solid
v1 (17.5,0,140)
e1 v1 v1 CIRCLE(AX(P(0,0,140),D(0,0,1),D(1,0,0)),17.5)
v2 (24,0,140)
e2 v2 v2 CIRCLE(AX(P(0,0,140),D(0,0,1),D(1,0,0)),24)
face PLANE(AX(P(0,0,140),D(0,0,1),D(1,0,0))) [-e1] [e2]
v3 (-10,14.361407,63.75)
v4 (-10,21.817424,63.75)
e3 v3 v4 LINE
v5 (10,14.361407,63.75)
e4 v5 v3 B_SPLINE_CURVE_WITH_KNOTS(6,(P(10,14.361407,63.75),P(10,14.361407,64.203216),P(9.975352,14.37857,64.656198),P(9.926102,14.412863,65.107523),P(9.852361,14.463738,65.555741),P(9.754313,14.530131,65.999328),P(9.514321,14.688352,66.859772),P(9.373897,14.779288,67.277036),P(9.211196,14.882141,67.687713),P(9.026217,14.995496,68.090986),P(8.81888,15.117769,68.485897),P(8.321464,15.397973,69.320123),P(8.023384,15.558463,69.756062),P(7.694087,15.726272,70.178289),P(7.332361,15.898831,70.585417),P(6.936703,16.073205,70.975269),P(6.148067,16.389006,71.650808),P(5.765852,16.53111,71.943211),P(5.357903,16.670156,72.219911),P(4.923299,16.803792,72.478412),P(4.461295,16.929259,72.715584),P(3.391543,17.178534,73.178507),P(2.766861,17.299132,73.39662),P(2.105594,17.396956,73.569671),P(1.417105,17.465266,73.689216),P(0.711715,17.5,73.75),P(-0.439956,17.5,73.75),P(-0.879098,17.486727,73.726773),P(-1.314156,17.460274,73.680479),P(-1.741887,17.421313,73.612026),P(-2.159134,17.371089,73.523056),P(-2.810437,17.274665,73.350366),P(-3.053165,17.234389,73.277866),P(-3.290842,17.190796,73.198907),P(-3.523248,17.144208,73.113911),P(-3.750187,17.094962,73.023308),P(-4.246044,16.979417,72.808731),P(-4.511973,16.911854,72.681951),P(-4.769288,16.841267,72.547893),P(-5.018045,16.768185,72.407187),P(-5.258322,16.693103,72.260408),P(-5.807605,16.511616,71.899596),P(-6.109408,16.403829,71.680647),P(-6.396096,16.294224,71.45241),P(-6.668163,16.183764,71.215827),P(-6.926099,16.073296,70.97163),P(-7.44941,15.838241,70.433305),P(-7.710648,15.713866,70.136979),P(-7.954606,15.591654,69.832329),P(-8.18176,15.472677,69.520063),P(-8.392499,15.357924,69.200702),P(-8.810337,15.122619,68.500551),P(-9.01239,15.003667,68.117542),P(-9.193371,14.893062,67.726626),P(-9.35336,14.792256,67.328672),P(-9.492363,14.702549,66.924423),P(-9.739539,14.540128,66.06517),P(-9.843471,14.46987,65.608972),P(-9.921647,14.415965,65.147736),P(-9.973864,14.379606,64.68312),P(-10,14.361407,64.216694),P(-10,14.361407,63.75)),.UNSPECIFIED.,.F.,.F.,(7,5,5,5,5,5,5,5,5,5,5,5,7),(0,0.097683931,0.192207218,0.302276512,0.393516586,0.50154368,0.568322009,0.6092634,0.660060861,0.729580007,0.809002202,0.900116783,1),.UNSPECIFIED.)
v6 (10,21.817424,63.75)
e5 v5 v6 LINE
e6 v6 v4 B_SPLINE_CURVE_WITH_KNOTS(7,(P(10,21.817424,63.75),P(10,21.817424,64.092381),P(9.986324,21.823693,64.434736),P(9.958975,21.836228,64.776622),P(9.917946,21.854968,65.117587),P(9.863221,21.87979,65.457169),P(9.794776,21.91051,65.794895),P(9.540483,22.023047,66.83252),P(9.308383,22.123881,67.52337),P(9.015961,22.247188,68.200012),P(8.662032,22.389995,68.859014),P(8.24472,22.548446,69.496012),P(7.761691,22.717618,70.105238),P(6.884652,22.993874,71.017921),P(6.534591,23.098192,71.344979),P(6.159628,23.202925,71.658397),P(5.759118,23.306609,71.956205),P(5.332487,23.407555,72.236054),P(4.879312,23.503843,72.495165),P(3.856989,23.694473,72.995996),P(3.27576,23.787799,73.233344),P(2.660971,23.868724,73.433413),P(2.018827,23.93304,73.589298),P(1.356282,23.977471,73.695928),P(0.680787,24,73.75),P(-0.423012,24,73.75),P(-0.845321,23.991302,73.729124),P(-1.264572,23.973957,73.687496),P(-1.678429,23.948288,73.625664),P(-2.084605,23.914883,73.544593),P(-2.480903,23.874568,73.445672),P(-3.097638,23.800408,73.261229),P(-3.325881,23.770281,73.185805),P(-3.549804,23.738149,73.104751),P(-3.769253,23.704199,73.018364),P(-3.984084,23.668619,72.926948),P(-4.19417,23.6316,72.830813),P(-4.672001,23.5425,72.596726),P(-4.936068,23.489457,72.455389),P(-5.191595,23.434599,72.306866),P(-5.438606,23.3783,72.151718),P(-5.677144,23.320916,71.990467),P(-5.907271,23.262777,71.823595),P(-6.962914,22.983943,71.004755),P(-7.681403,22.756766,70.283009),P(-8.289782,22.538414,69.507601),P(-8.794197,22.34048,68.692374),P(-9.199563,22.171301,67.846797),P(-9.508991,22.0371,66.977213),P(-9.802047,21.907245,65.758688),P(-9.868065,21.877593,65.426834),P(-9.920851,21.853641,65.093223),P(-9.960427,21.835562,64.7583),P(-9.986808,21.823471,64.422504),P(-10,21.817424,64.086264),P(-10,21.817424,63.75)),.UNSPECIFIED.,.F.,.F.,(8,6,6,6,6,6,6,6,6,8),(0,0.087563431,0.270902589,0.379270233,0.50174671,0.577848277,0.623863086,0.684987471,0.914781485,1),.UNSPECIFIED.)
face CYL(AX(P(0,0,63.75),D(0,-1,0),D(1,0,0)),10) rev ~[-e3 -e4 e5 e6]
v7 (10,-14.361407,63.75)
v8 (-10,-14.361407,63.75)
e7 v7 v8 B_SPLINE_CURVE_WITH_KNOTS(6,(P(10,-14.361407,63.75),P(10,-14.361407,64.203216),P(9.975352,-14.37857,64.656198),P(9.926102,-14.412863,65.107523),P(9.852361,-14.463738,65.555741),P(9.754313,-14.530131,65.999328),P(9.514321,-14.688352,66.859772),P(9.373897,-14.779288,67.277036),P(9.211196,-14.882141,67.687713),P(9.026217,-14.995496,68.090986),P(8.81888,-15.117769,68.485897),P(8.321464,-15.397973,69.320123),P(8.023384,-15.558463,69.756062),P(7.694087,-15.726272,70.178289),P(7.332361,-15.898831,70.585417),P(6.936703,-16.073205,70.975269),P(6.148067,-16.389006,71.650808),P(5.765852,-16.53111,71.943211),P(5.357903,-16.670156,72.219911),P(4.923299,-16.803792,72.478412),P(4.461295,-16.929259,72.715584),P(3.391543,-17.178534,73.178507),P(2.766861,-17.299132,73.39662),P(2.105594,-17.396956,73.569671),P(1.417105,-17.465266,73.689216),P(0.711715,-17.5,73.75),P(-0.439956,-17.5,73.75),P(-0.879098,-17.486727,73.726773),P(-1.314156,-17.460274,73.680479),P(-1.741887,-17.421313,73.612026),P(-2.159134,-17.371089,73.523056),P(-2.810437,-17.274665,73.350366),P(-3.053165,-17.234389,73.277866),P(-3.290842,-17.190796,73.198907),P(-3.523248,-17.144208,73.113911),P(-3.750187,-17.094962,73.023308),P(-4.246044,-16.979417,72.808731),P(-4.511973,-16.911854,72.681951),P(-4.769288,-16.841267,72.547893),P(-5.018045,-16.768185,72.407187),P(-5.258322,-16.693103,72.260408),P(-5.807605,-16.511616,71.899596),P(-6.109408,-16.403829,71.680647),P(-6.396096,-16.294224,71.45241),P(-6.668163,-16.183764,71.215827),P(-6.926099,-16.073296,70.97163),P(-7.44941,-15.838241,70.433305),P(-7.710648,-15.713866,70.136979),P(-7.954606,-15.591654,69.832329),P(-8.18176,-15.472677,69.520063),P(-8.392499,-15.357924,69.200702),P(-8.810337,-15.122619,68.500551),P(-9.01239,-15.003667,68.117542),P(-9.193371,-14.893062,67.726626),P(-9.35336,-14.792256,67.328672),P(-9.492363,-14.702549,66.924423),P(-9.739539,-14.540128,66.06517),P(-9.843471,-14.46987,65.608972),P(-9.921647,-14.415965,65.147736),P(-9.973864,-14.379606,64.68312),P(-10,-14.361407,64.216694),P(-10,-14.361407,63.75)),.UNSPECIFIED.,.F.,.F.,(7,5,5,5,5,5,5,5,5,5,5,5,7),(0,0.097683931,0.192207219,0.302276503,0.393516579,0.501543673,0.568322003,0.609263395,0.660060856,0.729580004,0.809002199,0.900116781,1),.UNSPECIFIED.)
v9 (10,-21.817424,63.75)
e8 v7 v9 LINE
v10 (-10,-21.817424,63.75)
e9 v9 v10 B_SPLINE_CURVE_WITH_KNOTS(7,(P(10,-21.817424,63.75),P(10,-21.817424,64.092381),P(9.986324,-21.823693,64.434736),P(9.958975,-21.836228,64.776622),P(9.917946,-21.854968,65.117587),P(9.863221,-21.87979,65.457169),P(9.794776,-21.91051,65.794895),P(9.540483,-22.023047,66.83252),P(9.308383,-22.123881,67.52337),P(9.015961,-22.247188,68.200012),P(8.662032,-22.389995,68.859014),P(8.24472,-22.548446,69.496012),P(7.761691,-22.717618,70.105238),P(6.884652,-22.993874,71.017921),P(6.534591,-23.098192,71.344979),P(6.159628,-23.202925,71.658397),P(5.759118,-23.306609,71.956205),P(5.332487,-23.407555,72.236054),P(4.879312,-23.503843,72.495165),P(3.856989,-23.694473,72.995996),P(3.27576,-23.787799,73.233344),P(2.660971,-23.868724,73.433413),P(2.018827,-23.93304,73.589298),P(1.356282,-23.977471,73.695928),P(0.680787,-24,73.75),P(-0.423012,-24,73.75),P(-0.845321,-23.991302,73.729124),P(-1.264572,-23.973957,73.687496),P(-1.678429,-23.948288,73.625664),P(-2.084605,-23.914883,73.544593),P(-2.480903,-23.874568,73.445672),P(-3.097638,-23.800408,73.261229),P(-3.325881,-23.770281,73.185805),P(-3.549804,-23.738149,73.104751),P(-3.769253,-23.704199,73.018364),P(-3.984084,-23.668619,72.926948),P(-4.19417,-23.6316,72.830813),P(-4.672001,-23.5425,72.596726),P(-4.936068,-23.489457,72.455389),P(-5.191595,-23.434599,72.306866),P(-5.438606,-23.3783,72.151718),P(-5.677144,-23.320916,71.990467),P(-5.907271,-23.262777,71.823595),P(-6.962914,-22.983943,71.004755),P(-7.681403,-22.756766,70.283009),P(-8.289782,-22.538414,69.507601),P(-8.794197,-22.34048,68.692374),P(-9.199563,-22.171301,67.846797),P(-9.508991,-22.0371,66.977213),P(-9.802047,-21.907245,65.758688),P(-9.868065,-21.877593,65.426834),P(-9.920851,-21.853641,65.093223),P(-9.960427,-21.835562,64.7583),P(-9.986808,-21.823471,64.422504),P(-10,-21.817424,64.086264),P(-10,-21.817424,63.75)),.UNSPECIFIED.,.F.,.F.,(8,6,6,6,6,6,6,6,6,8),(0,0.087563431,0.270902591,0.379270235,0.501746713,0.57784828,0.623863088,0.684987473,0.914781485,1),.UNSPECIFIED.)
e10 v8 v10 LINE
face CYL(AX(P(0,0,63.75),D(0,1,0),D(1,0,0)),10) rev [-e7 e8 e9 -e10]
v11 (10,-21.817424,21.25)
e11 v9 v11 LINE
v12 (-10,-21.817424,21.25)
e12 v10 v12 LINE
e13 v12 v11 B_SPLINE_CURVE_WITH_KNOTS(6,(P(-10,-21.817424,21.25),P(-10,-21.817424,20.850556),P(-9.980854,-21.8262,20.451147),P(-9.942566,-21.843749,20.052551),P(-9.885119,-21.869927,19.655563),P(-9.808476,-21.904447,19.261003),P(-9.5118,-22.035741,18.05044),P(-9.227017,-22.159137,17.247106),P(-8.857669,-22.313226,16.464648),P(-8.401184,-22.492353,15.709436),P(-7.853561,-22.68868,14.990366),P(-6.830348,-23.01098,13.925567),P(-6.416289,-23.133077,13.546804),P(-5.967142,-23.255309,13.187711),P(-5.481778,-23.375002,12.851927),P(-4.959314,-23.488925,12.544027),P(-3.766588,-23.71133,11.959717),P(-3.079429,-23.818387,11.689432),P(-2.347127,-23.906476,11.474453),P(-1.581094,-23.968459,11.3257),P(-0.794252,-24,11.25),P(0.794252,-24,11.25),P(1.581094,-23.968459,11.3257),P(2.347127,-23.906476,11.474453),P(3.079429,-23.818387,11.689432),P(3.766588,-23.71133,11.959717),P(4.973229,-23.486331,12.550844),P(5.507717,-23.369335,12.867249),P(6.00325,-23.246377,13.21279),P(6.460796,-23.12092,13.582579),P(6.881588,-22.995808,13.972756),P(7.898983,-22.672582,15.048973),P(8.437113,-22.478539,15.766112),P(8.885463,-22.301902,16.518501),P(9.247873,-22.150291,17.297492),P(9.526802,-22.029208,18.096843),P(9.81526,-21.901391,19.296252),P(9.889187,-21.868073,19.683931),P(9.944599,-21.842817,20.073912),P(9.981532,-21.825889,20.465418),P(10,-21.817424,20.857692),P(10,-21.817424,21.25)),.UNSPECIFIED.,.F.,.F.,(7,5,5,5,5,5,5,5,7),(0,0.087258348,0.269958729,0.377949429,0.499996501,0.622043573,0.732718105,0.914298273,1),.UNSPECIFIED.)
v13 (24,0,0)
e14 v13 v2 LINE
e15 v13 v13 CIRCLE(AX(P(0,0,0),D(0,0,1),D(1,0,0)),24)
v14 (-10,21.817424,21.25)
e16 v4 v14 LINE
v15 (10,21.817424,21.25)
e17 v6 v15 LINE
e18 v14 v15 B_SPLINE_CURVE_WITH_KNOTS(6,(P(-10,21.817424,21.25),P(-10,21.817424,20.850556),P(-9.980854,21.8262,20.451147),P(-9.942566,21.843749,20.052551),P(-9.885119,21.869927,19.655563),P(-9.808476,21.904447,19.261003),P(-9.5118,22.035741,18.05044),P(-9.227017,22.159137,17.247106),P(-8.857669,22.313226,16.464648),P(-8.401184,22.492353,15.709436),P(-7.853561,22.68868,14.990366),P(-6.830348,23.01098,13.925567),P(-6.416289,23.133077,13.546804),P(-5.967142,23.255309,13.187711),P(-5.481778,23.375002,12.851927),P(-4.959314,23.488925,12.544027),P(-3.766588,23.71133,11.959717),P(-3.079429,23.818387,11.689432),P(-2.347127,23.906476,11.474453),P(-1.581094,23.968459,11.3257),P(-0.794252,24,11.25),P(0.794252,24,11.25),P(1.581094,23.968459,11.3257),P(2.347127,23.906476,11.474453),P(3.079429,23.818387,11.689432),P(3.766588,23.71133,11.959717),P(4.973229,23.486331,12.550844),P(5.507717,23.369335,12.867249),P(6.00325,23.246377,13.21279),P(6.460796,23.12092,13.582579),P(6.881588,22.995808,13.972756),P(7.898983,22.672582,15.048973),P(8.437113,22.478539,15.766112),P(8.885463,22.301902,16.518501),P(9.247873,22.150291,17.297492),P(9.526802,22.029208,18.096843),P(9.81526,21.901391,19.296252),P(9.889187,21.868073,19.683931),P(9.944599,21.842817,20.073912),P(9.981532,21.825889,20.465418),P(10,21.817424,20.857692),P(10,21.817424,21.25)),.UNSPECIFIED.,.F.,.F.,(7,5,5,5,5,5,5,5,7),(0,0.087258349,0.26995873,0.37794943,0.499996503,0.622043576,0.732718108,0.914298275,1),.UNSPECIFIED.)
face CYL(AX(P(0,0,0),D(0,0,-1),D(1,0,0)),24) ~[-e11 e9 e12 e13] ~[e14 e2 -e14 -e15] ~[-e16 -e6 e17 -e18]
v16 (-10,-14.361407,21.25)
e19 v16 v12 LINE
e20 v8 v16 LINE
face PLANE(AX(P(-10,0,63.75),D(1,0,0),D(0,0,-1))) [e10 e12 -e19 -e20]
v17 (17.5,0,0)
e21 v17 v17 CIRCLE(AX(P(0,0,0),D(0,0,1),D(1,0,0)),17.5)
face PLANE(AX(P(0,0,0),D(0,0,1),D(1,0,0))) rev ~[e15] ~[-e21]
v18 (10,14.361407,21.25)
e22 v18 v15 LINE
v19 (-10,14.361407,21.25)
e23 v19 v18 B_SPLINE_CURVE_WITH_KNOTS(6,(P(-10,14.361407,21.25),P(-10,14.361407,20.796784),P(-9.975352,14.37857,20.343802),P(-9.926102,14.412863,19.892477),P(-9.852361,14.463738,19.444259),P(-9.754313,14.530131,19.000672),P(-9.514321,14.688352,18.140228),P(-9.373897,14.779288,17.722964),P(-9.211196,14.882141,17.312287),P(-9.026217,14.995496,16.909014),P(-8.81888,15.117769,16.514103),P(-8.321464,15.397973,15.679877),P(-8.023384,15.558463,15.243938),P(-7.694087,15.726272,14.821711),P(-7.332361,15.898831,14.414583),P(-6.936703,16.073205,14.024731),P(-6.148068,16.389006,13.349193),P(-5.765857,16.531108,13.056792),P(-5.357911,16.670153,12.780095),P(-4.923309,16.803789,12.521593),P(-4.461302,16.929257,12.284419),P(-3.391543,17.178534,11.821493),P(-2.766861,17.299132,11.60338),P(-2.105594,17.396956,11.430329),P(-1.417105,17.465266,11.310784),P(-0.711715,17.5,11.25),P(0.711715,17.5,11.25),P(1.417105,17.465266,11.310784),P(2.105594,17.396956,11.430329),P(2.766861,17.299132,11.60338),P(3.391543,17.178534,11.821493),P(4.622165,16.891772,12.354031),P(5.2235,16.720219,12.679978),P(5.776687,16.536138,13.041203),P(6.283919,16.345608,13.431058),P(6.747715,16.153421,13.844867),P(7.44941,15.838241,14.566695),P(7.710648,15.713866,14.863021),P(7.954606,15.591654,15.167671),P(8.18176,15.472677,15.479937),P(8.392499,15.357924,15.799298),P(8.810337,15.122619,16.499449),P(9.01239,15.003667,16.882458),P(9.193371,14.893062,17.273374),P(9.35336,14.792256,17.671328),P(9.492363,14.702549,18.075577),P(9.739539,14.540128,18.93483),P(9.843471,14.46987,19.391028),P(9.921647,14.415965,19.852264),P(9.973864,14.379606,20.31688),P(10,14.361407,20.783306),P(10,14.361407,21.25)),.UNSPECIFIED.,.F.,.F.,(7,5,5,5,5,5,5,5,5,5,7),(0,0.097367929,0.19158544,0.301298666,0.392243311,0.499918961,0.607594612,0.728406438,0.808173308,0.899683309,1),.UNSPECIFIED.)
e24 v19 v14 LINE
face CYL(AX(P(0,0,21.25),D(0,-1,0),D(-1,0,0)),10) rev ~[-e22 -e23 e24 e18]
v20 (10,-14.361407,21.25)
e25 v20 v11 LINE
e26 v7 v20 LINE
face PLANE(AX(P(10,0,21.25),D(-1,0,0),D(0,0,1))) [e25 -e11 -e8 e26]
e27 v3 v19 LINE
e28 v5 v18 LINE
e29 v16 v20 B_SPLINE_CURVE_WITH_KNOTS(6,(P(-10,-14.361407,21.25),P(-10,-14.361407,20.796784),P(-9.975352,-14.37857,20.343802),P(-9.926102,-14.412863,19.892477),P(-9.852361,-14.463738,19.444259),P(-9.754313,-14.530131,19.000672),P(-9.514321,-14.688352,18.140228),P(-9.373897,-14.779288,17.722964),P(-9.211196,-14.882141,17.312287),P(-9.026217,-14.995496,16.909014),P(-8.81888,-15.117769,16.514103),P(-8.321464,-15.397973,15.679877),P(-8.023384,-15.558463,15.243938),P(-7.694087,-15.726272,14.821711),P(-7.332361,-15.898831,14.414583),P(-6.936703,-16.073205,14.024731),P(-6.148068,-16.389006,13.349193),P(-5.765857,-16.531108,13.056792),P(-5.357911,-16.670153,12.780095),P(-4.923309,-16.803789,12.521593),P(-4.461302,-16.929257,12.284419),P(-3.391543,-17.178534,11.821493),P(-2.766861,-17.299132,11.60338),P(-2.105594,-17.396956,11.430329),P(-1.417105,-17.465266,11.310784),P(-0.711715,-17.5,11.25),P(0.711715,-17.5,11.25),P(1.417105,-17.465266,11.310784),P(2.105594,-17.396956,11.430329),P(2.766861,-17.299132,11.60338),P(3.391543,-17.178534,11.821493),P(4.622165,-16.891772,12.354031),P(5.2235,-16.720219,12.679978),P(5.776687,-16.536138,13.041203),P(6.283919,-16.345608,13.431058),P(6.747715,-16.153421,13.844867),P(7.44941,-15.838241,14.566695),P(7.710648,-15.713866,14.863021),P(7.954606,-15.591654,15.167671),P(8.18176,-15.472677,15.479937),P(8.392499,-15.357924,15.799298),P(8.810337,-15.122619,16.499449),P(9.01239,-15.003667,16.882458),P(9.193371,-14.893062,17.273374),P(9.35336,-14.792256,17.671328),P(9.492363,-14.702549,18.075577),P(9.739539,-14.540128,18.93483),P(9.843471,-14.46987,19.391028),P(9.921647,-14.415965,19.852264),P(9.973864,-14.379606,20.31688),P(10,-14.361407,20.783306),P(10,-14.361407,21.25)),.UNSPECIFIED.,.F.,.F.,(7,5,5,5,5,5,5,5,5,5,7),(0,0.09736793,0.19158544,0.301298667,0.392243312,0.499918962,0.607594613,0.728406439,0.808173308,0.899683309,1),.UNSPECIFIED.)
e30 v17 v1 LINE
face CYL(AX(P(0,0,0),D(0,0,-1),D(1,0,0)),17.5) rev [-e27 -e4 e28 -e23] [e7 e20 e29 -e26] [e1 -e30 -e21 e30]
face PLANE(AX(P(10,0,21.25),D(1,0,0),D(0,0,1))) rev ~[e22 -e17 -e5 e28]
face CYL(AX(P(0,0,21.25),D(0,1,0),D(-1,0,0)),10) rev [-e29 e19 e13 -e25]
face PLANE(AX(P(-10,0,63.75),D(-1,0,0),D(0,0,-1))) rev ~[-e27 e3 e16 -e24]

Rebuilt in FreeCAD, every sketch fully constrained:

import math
import FreeCAD as App
import Part
import Sketcher
Q = App.Units.Quantity

doc = App.newDocument("Part")
body = doc.addObject("PartDesign::Body", "Body")

sketch1 = doc.addObject("Sketcher::SketchObject", "Sketch")
body.addObject(sketch1)
sketch1.AttachmentSupport = (doc.XY_Plane, [""])
sketch1.MapMode = "FlatFace"
sketch1.addGeometry([
    Part.Circle(App.Vector(0, 0, 0), App.Vector(0, 0, 1), 24),
    Part.Circle(App.Vector(0, 0, 0), App.Vector(0, 0, 1), 17.5),
], False)
sketch1.addConstraint([
    Sketcher.Constraint("Coincident", 0, 3, -1, 1),
    Sketcher.Constraint("Coincident", 1, 3, -1, 1),
    Sketcher.Constraint("Diameter", 0, Q("48 mm")),
    Sketcher.Constraint("Diameter", 1, Q("35 mm")),
])
pad1 = doc.addObject("PartDesign::Pad", "Pad")
body.addObject(pad1)
pad1.Profile = sketch1
pad1.Length = 140

sketch2 = doc.addObject("Sketcher::SketchObject", "Sketch001")
body.addObject(sketch2)
sketch2.AttachmentSupport = (doc.XZ_Plane, [""])
sketch2.MapMode = "FlatFace"
sketch2.addGeometry([
    Part.ArcOfCircle(Part.Circle(App.Vector(0, 21.25, 0), App.Vector(0, 0, 1), 10), math.radians(180), math.radians(360)),
    Part.LineSegment(App.Vector(10, 21.25, 0), App.Vector(10, 63.75, 0)),
    Part.ArcOfCircle(Part.Circle(App.Vector(0, 63.75, 0), App.Vector(0, 0, 1), 10), math.radians(0), math.radians(180)),
    Part.LineSegment(App.Vector(-10, 63.75, 0), App.Vector(-10, 21.25, 0)),
], False)
sketch2.addConstraint([
    Sketcher.Constraint("Tangent", 0, 2, 1, 1),
    Sketcher.Constraint("Tangent", 1, 2, 2, 1),
    Sketcher.Constraint("Tangent", 2, 2, 3, 1),
    Sketcher.Constraint("Tangent", 3, 2, 0, 1),
    Sketcher.Constraint("Vertical", 1),
    Sketcher.Constraint("Vertical", 3),
    Sketcher.Constraint("PointOnObject", 0, 3, -2),
    Sketcher.Constraint("Radius", 0, Q("10 mm")),
    Sketcher.Constraint("DistanceY", 1, 1, 1, 2, Q("42.5 mm")),
    Sketcher.Constraint("DistanceY", -1, 1, 0, 3, Q("21.25 mm")),
])
pocket1 = doc.addObject("PartDesign::Pocket", "Pocket")
body.addObject(pocket1)
pocket1.Profile = sketch2
pocket1.Type = "ThroughAll"
pocket1.Midplane = True

doc.recompute()
